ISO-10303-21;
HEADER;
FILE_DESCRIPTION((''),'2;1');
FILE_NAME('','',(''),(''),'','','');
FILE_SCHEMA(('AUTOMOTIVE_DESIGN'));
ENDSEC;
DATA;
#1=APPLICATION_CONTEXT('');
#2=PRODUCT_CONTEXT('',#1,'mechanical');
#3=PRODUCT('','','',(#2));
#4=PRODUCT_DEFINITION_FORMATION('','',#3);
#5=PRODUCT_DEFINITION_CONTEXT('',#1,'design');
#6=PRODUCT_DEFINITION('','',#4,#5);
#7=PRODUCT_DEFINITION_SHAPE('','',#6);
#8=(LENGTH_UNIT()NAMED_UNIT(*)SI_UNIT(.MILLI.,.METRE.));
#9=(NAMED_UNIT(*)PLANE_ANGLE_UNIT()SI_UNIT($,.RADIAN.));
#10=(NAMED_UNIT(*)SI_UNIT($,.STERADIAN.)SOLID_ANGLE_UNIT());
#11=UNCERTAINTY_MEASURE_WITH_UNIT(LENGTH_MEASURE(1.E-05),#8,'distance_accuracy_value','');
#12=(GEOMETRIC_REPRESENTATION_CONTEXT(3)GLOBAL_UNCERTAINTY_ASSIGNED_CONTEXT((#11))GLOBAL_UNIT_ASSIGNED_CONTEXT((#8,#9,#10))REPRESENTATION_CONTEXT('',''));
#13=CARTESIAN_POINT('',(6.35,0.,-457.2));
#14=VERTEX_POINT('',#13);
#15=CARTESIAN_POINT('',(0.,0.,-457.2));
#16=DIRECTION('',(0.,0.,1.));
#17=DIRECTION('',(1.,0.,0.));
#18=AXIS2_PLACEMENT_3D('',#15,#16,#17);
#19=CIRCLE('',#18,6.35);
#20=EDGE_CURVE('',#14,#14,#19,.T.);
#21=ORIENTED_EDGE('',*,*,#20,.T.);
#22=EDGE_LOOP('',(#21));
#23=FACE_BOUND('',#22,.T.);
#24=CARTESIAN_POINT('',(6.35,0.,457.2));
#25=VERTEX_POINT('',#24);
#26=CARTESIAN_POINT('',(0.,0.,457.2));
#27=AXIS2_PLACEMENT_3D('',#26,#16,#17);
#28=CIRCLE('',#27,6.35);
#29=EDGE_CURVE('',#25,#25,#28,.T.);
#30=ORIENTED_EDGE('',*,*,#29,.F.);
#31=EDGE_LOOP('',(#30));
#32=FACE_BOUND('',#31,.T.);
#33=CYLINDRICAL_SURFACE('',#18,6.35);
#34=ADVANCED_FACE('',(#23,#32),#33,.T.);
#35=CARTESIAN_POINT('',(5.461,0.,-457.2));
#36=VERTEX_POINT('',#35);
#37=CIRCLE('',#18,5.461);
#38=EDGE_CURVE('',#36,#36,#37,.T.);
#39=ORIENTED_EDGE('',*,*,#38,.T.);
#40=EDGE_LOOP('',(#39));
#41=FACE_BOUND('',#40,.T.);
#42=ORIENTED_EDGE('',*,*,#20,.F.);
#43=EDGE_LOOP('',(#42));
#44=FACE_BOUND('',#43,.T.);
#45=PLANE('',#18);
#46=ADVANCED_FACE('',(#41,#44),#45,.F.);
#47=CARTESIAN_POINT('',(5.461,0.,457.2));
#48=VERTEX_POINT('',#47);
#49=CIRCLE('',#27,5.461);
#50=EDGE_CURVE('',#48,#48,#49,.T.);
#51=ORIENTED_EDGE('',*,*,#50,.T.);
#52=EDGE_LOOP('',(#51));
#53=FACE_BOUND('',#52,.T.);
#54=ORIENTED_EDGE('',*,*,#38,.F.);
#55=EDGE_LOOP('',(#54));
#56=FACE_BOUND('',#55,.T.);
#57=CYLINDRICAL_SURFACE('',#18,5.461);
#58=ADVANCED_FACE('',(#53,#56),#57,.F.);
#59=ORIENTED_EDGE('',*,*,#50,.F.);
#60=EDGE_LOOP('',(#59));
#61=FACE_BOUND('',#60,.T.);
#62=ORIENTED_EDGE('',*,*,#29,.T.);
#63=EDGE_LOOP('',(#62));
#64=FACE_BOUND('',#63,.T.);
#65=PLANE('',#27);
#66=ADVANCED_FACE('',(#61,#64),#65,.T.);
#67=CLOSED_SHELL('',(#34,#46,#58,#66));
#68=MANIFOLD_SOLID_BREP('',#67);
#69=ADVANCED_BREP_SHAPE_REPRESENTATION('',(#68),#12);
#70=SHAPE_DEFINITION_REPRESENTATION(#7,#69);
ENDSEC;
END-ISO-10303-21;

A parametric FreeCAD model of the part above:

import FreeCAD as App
import Part
import Sketcher
from FreeCAD import Vector
Q = App.Units.Quantity

doc = App.newDocument("Part")
body = doc.addObject("PartDesign::Body", "Body")

# Sketch on XY plane
sketch1 = doc.addObject("Sketcher::SketchObject", "Sketch")
body.addObject(sketch1)
sketch1.AttachmentSupport = (doc.XY_Plane, [""])
sketch1.MapMode = "FlatFace"
sketch1.addGeometry(Part.Circle(Vector(0, 0, 0), Vector(0, 0, 1), 6.35), False)
sketch1.addGeometry(Part.Circle(Vector(0, 0, 0), Vector(0, 0, 1), 5.461), False)
sketch1.addConstraint(Sketcher.Constraint("Coincident", 0, 3, -1, 1))
sketch1.addConstraint(Sketcher.Constraint("Coincident", 1, 3, -1, 1))
sketch1.addConstraint(Sketcher.Constraint("Diameter", 0, Q("0.5 in")))
sketch1.addConstraint(Sketcher.Constraint("Diameter", 1, Q("0.43 in")))
pad1 = doc.addObject("PartDesign::Pad", "Pad")
body.addObject(pad1)
pad1.Profile = sketch1
pad1.Type = "TwoLengths"
pad1.Length = Q("18 in")
pad1.Length2 = Q("18 in")

doc.recompute()
